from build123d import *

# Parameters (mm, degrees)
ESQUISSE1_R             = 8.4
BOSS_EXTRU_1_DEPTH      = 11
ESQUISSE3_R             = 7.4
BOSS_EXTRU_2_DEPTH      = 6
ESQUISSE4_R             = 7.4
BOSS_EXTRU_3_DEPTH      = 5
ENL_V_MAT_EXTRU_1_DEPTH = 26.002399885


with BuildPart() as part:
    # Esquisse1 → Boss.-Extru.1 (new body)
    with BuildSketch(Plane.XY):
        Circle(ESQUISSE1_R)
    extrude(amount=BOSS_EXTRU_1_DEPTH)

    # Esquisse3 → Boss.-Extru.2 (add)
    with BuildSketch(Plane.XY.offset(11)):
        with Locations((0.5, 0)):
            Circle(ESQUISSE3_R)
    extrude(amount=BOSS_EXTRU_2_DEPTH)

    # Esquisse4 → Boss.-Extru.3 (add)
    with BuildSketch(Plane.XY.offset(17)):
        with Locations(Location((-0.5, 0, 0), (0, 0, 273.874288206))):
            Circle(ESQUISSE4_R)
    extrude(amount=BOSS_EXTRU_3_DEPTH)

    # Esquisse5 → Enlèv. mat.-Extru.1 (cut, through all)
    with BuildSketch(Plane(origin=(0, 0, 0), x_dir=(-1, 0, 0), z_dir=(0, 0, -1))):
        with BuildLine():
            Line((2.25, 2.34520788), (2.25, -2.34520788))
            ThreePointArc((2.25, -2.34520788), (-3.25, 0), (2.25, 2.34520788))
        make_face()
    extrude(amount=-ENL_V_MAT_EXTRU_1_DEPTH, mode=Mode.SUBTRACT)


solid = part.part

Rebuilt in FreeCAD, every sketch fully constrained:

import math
import FreeCAD as App
import Part
import Sketcher

V = App.Vector
Q = App.Units.Quantity

doc = App.newDocument("Part")
body = doc.addObject("PartDesign::Body", "Body")

# Sketch on XY plane
sketch1 = doc.addObject("Sketcher::SketchObject", "Sketch")
body.addObject(sketch1)
sketch1.AttachmentSupport = (doc.XY_Plane, [""])
sketch1.MapMode = "FlatFace"
sketch1.addGeometry(Part.Circle(V(0, 0, 0), V(0, 0, 1), 8), False)
sketch1.addConstraint(Sketcher.Constraint("Coincident", 0, 3, -1, 1))
sketch1.addConstraint(Sketcher.Constraint("Diameter", 0, Q("16.8 mm")))
pad1 = doc.addObject("PartDesign::Pad", "Pad")
body.addObject(pad1)
pad1.Profile = sketch1
pad1.Length = 11

# Sketch on XY plane
sketch2 = doc.addObject("Sketcher::SketchObject", "Sketch001")
body.addObject(sketch2)
sketch2.AttachmentSupport = (doc.XY_Plane, [""])
sketch2.MapMode = "FlatFace"
sketch2.AttachmentOffset = App.Placement(V(0, 0, 11), App.Rotation())
sketch2.addGeometry(Part.Circle(V(0, 0, 0), V(0, 0, 1), 7), False)
sketch2.addConstraint(Sketcher.Constraint("PointOnObject", 0, 3, -1))
sketch2.addConstraint(Sketcher.Constraint("Diameter", 0, Q("14.8 mm")))
sketch2.addConstraint(Sketcher.Constraint("DistanceX", -1, 1, 0, 3, Q("0.5 mm")))
pad2 = doc.addObject("PartDesign::Pad", "Pad001")
body.addObject(pad2)
pad2.Profile = sketch2
pad2.Length = 6

# Sketch on XY plane
sketch3 = doc.addObject("Sketcher::SketchObject", "Sketch002")
body.addObject(sketch3)
sketch3.AttachmentSupport = (doc.XY_Plane, [""])
sketch3.MapMode = "FlatFace"
sketch3.AttachmentOffset = App.Placement(V(0, 0, 17), App.Rotation())
sketch3.addGeometry(Part.Circle(V(0, 0, 0), V(0, 0, 1), 7), False)
sketch3.addConstraint(Sketcher.Constraint("PointOnObject", 0, 3, -1))
sketch3.addConstraint(Sketcher.Constraint("Diameter", 0, Q("14.8 mm")))
sketch3.addConstraint(Sketcher.Constraint("DistanceX", 0, 3, -1, 1, Q("0.5 mm")))
pad3 = doc.addObject("PartDesign::Pad", "Pad002")
body.addObject(pad3)
pad3.Profile = sketch3
pad3.Length = 5

# Sketch on XY plane
sketch4 = doc.addObject("Sketcher::SketchObject", "Sketch003")
body.addObject(sketch4)
sketch4.AttachmentSupport = (doc.XY_Plane, [""])
sketch4.MapMode = "FlatFace"
sketch4.addGeometry(Part.LineSegment(V(-2.2, -2.3, 0), V(-2.2, 2.3, 0)), False)
sketch4.addGeometry(Part.ArcOfCircle(Part.Circle(V(0, 0, 0), V(0, 0, 1), 3.2), math.radians(-134), math.radians(134)), False)
sketch4.addConstraint(Sketcher.Constraint("Coincident", 0, 1, 1, 1))
sketch4.addConstraint(Sketcher.Constraint("Coincident", 1, 2, 0, 2))
sketch4.addConstraint(Sketcher.Constraint("Vertical", 0))
sketch4.addConstraint(Sketcher.Constraint("Coincident", 1, 3, -1, 1))
sketch4.addConstraint(Sketcher.Constraint("Radius", 1, Q("3.25 mm")))
sketch4.addConstraint(Sketcher.Constraint("DistanceX", 0, 1, -1, 1, Q("2.25 mm")))
pocket1 = doc.addObject("PartDesign::Pocket", "Pocket")
body.addObject(pocket1)
pocket1.Profile = sketch4
pocket1.Type = "ThroughAll"
pocket1.Reversed = True

doc.recompute()
